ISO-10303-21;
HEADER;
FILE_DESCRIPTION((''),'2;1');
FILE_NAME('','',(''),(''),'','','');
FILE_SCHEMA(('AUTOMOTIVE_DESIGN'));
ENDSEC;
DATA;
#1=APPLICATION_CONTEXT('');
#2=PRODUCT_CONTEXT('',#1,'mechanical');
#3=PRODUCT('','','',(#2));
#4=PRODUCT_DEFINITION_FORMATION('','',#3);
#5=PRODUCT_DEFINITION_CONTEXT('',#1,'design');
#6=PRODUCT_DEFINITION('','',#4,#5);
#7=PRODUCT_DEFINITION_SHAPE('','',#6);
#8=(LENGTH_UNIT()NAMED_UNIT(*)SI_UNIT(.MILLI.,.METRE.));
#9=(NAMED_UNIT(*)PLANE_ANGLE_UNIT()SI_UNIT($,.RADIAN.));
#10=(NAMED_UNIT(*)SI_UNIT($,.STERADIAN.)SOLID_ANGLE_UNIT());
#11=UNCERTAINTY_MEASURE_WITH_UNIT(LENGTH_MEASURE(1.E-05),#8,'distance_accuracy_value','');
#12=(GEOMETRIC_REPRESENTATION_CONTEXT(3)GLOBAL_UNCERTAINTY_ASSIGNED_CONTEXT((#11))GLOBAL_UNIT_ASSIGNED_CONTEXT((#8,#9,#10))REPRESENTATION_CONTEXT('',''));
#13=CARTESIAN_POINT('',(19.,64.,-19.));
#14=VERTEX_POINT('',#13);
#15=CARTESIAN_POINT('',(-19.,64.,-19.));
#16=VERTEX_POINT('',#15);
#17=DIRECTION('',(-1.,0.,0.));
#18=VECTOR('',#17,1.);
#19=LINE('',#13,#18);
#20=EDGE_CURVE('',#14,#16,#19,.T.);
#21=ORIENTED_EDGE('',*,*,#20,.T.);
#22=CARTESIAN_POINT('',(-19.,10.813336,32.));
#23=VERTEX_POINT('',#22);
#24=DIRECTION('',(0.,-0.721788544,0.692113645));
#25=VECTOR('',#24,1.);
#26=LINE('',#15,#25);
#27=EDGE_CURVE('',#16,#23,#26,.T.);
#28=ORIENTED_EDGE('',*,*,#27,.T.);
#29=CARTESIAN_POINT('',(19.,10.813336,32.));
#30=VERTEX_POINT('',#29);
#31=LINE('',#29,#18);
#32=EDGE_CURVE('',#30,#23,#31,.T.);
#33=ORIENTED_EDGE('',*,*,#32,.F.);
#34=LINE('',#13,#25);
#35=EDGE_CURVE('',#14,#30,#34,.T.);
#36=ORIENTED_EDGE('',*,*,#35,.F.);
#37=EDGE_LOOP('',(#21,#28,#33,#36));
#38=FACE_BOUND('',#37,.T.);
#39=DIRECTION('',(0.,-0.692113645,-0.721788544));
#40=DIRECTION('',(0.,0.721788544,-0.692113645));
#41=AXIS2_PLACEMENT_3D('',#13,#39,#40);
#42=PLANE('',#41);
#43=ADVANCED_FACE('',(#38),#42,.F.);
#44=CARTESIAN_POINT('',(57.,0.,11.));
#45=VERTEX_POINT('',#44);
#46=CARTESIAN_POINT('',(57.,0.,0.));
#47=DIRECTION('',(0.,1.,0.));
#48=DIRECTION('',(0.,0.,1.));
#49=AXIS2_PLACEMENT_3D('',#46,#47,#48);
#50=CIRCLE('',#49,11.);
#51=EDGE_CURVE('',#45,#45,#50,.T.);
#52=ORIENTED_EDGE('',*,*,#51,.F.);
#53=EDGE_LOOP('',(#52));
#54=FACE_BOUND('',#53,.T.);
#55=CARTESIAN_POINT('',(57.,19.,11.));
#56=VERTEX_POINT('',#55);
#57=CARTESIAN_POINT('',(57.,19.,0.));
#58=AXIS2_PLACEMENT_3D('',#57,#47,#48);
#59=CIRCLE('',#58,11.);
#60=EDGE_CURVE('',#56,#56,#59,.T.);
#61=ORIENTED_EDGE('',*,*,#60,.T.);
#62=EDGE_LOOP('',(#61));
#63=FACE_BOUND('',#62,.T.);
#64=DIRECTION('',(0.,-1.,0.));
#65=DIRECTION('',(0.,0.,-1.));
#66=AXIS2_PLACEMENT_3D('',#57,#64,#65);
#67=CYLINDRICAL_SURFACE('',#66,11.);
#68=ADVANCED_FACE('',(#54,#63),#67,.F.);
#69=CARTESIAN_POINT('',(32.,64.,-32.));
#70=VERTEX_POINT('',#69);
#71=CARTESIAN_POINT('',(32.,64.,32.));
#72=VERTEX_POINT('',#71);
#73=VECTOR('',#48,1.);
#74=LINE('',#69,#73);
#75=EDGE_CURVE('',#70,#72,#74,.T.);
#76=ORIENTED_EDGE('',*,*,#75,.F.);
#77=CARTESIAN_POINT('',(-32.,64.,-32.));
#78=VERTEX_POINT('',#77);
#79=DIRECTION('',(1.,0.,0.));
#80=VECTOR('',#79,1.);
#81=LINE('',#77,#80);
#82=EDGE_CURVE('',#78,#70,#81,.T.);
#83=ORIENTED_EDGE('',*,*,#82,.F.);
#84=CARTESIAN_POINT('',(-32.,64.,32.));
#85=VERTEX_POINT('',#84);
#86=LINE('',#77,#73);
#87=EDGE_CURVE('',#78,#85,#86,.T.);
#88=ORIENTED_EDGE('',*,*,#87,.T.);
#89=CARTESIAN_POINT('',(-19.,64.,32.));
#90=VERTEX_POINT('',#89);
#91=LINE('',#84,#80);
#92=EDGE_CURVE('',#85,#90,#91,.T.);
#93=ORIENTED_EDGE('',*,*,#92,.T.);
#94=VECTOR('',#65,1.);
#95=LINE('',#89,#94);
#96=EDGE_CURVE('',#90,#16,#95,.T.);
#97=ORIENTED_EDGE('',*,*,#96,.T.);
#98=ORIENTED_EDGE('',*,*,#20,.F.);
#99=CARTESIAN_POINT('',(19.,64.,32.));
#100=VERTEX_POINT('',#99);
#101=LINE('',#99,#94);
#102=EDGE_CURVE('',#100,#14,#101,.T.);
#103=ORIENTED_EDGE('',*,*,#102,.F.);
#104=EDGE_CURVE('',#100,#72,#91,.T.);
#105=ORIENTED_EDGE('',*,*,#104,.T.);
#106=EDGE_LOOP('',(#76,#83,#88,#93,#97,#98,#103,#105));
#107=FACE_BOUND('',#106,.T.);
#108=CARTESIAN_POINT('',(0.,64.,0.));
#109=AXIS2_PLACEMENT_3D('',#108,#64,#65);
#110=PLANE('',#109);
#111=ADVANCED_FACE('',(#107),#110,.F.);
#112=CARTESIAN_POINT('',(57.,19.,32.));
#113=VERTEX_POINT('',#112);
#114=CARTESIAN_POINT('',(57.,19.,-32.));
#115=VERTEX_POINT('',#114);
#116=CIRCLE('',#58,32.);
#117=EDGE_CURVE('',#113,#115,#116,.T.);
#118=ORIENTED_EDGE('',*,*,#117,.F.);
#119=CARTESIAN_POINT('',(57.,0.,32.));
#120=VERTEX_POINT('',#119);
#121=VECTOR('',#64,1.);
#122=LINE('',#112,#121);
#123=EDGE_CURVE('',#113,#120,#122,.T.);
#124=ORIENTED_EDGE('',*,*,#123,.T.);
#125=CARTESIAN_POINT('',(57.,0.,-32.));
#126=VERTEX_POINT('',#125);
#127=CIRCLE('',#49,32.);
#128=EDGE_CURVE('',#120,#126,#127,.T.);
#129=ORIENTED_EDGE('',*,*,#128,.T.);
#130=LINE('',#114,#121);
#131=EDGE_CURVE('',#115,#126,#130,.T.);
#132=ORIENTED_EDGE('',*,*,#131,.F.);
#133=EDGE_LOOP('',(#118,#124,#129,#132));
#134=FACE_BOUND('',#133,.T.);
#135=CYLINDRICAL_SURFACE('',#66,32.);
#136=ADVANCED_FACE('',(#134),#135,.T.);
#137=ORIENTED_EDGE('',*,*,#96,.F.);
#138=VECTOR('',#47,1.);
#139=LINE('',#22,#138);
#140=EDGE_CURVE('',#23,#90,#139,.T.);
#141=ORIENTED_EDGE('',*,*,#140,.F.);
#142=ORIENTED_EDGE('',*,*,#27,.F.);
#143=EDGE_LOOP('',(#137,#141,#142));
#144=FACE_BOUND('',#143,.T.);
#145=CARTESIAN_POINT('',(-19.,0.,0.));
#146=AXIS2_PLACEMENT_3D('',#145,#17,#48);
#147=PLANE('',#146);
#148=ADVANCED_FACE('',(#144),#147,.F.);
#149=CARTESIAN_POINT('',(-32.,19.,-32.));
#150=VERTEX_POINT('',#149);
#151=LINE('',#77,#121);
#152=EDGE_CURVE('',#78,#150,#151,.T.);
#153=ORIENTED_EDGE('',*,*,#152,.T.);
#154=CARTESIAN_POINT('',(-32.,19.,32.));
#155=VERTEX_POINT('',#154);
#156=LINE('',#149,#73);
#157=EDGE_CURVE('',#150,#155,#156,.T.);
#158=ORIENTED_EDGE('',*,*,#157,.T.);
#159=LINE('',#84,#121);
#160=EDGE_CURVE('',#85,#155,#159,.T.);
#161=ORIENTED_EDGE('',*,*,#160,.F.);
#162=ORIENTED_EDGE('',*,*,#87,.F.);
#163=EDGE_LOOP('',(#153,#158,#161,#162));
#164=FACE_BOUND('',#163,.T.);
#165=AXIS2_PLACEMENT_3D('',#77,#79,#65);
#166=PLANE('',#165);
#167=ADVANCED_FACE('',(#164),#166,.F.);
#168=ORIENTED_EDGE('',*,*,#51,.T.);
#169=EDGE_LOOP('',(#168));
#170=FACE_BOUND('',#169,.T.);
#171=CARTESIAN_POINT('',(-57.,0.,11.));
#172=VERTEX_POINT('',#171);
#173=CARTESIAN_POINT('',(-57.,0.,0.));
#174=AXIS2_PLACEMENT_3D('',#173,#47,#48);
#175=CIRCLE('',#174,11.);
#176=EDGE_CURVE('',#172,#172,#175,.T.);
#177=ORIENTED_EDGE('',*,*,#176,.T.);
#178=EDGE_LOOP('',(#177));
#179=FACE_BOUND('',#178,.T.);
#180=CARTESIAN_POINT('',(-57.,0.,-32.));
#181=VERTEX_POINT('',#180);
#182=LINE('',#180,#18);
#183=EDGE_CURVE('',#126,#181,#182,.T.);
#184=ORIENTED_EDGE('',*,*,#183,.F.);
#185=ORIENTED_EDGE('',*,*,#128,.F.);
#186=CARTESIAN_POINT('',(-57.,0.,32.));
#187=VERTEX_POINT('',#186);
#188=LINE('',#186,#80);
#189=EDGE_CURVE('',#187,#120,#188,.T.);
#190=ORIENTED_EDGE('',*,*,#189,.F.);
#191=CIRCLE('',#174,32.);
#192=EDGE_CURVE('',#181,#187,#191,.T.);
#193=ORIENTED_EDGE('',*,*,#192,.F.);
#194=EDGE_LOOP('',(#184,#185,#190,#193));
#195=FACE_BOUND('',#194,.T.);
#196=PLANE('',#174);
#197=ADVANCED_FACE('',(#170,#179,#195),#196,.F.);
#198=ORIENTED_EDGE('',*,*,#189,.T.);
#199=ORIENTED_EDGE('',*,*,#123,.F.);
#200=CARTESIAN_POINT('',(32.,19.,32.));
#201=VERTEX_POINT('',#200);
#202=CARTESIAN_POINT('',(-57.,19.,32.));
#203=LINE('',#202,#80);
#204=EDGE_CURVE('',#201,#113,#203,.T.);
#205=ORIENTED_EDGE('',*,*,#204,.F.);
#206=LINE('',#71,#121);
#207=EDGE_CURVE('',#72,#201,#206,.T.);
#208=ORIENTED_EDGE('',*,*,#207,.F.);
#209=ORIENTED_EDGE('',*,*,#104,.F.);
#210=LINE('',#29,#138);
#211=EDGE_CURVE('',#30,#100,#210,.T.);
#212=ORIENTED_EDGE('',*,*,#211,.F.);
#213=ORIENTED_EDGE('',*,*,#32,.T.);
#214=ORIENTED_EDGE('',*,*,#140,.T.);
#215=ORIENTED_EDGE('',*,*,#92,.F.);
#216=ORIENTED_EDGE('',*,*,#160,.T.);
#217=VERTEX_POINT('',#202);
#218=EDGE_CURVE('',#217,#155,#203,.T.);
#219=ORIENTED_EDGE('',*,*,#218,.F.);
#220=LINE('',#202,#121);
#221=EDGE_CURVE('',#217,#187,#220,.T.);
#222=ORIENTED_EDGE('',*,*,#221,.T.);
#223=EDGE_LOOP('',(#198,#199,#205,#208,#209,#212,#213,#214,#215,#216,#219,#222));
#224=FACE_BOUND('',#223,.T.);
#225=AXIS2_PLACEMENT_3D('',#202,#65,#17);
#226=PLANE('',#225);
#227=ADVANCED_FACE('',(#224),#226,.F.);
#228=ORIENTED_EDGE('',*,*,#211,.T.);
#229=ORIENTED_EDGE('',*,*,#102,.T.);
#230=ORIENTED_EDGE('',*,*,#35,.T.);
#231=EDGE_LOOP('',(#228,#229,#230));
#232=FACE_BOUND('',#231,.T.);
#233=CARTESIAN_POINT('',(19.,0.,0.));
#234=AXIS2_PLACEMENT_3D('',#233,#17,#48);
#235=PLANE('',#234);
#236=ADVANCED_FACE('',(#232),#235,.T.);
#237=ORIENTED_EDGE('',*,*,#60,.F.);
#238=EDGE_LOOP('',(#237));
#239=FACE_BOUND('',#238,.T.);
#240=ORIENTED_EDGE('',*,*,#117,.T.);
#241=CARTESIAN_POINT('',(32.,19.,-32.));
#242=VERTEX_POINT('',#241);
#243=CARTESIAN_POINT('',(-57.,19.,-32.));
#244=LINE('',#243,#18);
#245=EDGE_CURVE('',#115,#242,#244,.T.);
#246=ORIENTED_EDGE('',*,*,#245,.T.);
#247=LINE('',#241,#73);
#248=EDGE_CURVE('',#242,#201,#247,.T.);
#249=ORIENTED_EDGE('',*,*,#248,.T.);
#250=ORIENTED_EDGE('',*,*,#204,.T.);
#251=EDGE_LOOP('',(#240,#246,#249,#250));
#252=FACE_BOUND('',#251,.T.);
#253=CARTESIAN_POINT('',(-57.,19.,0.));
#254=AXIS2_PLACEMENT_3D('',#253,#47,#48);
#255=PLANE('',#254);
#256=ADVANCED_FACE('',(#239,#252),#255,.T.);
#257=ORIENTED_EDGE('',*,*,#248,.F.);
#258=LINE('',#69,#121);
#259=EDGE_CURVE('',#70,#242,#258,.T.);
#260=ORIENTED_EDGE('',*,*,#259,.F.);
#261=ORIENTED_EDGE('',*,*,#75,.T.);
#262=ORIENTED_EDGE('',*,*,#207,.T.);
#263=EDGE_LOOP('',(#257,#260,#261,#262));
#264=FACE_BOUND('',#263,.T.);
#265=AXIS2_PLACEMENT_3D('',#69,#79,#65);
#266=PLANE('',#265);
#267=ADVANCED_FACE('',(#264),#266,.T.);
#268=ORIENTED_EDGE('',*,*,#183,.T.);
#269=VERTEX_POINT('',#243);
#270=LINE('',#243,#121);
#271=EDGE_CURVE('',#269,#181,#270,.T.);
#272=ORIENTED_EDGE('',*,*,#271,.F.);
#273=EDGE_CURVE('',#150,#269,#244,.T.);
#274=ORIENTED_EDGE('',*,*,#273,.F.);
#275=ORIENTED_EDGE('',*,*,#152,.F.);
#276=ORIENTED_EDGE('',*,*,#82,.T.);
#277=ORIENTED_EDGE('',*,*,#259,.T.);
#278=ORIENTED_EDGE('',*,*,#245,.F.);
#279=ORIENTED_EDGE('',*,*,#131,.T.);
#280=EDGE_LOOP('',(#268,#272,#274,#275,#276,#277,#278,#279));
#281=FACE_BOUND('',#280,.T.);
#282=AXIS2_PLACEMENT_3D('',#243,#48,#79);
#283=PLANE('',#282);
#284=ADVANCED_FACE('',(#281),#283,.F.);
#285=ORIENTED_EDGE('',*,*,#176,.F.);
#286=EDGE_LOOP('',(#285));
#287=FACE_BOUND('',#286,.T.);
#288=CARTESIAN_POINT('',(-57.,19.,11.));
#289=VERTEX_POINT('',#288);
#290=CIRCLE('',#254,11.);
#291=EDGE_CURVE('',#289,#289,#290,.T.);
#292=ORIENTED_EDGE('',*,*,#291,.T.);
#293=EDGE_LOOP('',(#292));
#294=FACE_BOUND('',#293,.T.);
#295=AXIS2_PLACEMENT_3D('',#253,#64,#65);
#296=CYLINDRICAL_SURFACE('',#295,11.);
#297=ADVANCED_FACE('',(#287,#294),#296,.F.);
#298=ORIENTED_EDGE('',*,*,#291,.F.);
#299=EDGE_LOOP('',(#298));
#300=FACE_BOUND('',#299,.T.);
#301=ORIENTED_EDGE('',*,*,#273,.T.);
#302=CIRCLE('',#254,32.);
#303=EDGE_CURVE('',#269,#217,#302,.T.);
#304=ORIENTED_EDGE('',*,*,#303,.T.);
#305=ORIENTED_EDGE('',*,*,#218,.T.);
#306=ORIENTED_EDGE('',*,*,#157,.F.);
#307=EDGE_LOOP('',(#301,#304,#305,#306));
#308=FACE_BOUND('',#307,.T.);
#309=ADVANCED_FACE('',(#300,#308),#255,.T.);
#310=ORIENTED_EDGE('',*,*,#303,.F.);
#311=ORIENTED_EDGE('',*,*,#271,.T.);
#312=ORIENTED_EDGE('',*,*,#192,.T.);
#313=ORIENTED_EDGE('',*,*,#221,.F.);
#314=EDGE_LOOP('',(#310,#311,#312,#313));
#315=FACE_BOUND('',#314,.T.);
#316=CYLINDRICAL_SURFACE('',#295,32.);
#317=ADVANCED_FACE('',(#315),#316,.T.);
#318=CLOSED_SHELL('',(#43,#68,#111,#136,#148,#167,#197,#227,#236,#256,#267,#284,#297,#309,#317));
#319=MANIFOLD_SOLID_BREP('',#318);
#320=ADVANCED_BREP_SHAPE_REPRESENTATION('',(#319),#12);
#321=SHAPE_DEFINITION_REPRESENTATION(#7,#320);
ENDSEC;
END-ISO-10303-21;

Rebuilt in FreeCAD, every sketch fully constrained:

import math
import FreeCAD as App
import Part
import Sketcher
Q = App.Units.Quantity


def add_polygon(sketch, points):
    """Adds a closed chain of lines whose ends are joined by coincident constraints."""
    first, n = sketch.GeometryCount, len(points)
    for a, b in zip(points, points[1:] + points[:1]):
        sketch.addGeometry(Part.LineSegment(App.Vector(*a, 0), App.Vector(*b, 0)), False)
    for i in range(n):
        sketch.addConstraint(Sketcher.Constraint("Coincident", first + i, 2, first + (i + 1) % n, 1))

doc = App.newDocument("Part")
body = doc.addObject("PartDesign::Body", "Body")

# Sketch on XZ plane
sketch1 = body.newObject("Sketcher::SketchObject", "Sketch")
sketch1.AttachmentSupport = (doc.getObject("XZ_Plane"), [""])
sketch1.MapMode = "FlatFace"
sketch1.addGeometry(Part.LineSegment(App.Vector(57, -32, 0), App.Vector(-57, -32, 0)), False)
sketch1.addGeometry(Part.ArcOfCircle(Part.Circle(App.Vector(-57, 0, 0), App.Vector(0, 0, 1), 32), math.radians(90), math.radians(270)), False)
sketch1.addGeometry(Part.LineSegment(App.Vector(-57, 32, 0), App.Vector(57, 32, 0)), False)
sketch1.addGeometry(Part.ArcOfCircle(Part.Circle(App.Vector(57, 0, 0), App.Vector(0, 0, 1), 32), math.radians(-90), math.radians(90)), False)
sketch1.addGeometry(Part.Circle(App.Vector(57, 0, 0), App.Vector(0, 0, 1), 11), False)
sketch1.addGeometry(Part.Circle(App.Vector(-57, 0, 0), App.Vector(0, 0, 1), 11), False)
sketch1.addConstraint(Sketcher.Constraint("Tangent", 0, 2, 1, 2))
sketch1.addConstraint(Sketcher.Constraint("Tangent", 1, 1, 2, 1))
sketch1.addConstraint(Sketcher.Constraint("Tangent", 2, 2, 3, 2))
sketch1.addConstraint(Sketcher.Constraint("Tangent", 3, 1, 0, 1))
sketch1.addConstraint(Sketcher.Constraint("Horizontal", 0))
sketch1.addConstraint(Sketcher.Constraint("Horizontal", 2))
sketch1.addConstraint(Sketcher.Constraint("Coincident", 4, 3, 3, 3))
sketch1.addConstraint(Sketcher.Constraint("Coincident", 5, 3, 1, 3))
sketch1.addConstraint(Sketcher.Constraint("Equal", 4, 5))
sketch1.addConstraint(Sketcher.Constraint("Symmetric", 1, 3, 3, 3, -1, 1))
sketch1.addConstraint(Sketcher.Constraint("Diameter", 4, Q("22 mm")))
sketch1.addConstraint(Sketcher.Constraint("Radius", 1, Q("32 mm")))
sketch1.addConstraint(Sketcher.Constraint("DistanceX", 0, 2, 0, 1, Q("114 mm")))
pad1 = body.newObject("PartDesign::Pad", "Pad")
pad1.Profile = sketch1
pad1.Length = 19
pad1.Reversed = True

# Sketch on XZ plane
sketch2 = body.newObject("Sketcher::SketchObject", "Sketch001")
sketch2.AttachmentSupport = (doc.getObject("XZ_Plane"), [""])
sketch2.MapMode = "FlatFace"
sketch2.AttachmentOffset = App.Placement(App.Vector(0, 0, -19), App.Rotation())
add_polygon(sketch2, [(-32, -32), (-32, 32), (32, 32), (32, -32)])  # lines 0-3
sketch2.addConstraint(Sketcher.Constraint("Vertical", 0))
sketch2.addConstraint(Sketcher.Constraint("Horizontal", 1))
sketch2.addConstraint(Sketcher.Constraint("Vertical", 2))
sketch2.addConstraint(Sketcher.Constraint("Horizontal", 3))
sketch2.addConstraint(Sketcher.Constraint("Symmetric", 0, 2, 2, 2, -1, 1))
sketch2.addConstraint(Sketcher.Constraint("Equal", 3, 0))
sketch2.addConstraint(Sketcher.Constraint("DistanceX", 1, 1, 1, 2, Q("64 mm")))
pad2 = body.newObject("PartDesign::Pad", "Pad001")
pad2.Profile = sketch2
pad2.Length = 45
pad2.Reversed = True

# Sketch on YZ plane
sketch3 = body.newObject("Sketcher::SketchObject", "Sketch002")
sketch3.AttachmentSupport = (doc.getObject("YZ_Plane"), [""])
sketch3.MapMode = "FlatFace"
sketch3.AttachmentOffset = App.Placement(App.Vector(0, 0, -19), App.Rotation())
add_polygon(sketch3, [(64, -19), (10.813336, 32), (64, 32)])  # lines 0-2
sketch3.addConstraint(Sketcher.Constraint("Horizontal", 1))
sketch3.addConstraint(Sketcher.Constraint("Vertical", 2))
sketch3.addConstraint(Sketcher.Constraint("DistanceY", 2, 2, 2, 1, Q("51 mm")))
sketch3.addConstraint(Sketcher.Constraint("DistanceY", -1, 1, 0, 2, Q("32 mm")))
sketch3.addConstraint(Sketcher.Constraint("DistanceX", -1, 1, 1, 2, Q("64 mm")))
sketch3.addConstraint(Sketcher.Constraint("Distance", 0, Q("73.687321 mm")))
pocket1 = body.newObject("PartDesign::Pocket", "Pocket")
pocket1.Profile = sketch3
pocket1.Length = 38
pocket1.Reversed = True

doc.recompute()
